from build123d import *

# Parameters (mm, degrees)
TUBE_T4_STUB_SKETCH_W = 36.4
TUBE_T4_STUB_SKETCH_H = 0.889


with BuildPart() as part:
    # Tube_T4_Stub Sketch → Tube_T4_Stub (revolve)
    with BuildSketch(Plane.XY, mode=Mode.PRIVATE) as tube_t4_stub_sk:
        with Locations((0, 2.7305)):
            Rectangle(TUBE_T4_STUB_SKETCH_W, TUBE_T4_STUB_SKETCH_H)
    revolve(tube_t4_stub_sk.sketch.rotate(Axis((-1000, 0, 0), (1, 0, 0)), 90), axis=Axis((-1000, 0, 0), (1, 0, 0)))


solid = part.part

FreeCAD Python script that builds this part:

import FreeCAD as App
import Part
import Sketcher

V = App.Vector


def add_polygon(sketch, points):
    """Adds a closed chain of lines whose ends are joined by coincident constraints."""
    first, n = sketch.GeometryCount, len(points)
    for a, b in zip(points, points[1:] + points[:1]):
        sketch.addGeometry(Part.LineSegment(App.Vector(*a, 0), App.Vector(*b, 0)), False)
    for i in range(n):
        sketch.addConstraint(Sketcher.Constraint("Coincident", first + i, 2, first + (i + 1) % n, 1))

doc = App.newDocument("Part")
body = doc.addObject("PartDesign::Body", "Body")

# Sketch on XY plane
sketch1 = body.newObject("Sketcher::SketchObject", "Sketch")
sketch1.AttachmentSupport = (doc.getObject("XY_Plane"), [""])
sketch1.MapMode = "FlatFace"
add_polygon(sketch1, [(-18.2, 3.2), (-18.2, 2.3), (18.2, 2.3), (18.2, 3.2)])  # lines 0-3
sketch1.addConstraint(Sketcher.Constraint("Vertical", 0))
sketch1.addConstraint(Sketcher.Constraint("Horizontal", 1))
sketch1.addConstraint(Sketcher.Constraint("Vertical", 2))
sketch1.addConstraint(Sketcher.Constraint("Horizontal", 3))
sketch1.addConstraint(Sketcher.Constraint("DistanceX", 1, 1, 1, 2, 36.4))
sketch1.addConstraint(Sketcher.Constraint("DistanceX", 0, 2, -1, 1, 18.2))
sketch1.addConstraint(Sketcher.Constraint("DistanceY", 0, 2, 0, 1, 0.889))
sketch1.addConstraint(Sketcher.Constraint("DistanceY", -1, 1, 0, 2, 2.286))
revolution = body.newObject("PartDesign::Revolution", "Revolution")
revolution.Profile = sketch1
revolution.ReferenceAxis = (sketch1, ["H_Axis"])
revolution.Angle = 360

doc.recompute()
